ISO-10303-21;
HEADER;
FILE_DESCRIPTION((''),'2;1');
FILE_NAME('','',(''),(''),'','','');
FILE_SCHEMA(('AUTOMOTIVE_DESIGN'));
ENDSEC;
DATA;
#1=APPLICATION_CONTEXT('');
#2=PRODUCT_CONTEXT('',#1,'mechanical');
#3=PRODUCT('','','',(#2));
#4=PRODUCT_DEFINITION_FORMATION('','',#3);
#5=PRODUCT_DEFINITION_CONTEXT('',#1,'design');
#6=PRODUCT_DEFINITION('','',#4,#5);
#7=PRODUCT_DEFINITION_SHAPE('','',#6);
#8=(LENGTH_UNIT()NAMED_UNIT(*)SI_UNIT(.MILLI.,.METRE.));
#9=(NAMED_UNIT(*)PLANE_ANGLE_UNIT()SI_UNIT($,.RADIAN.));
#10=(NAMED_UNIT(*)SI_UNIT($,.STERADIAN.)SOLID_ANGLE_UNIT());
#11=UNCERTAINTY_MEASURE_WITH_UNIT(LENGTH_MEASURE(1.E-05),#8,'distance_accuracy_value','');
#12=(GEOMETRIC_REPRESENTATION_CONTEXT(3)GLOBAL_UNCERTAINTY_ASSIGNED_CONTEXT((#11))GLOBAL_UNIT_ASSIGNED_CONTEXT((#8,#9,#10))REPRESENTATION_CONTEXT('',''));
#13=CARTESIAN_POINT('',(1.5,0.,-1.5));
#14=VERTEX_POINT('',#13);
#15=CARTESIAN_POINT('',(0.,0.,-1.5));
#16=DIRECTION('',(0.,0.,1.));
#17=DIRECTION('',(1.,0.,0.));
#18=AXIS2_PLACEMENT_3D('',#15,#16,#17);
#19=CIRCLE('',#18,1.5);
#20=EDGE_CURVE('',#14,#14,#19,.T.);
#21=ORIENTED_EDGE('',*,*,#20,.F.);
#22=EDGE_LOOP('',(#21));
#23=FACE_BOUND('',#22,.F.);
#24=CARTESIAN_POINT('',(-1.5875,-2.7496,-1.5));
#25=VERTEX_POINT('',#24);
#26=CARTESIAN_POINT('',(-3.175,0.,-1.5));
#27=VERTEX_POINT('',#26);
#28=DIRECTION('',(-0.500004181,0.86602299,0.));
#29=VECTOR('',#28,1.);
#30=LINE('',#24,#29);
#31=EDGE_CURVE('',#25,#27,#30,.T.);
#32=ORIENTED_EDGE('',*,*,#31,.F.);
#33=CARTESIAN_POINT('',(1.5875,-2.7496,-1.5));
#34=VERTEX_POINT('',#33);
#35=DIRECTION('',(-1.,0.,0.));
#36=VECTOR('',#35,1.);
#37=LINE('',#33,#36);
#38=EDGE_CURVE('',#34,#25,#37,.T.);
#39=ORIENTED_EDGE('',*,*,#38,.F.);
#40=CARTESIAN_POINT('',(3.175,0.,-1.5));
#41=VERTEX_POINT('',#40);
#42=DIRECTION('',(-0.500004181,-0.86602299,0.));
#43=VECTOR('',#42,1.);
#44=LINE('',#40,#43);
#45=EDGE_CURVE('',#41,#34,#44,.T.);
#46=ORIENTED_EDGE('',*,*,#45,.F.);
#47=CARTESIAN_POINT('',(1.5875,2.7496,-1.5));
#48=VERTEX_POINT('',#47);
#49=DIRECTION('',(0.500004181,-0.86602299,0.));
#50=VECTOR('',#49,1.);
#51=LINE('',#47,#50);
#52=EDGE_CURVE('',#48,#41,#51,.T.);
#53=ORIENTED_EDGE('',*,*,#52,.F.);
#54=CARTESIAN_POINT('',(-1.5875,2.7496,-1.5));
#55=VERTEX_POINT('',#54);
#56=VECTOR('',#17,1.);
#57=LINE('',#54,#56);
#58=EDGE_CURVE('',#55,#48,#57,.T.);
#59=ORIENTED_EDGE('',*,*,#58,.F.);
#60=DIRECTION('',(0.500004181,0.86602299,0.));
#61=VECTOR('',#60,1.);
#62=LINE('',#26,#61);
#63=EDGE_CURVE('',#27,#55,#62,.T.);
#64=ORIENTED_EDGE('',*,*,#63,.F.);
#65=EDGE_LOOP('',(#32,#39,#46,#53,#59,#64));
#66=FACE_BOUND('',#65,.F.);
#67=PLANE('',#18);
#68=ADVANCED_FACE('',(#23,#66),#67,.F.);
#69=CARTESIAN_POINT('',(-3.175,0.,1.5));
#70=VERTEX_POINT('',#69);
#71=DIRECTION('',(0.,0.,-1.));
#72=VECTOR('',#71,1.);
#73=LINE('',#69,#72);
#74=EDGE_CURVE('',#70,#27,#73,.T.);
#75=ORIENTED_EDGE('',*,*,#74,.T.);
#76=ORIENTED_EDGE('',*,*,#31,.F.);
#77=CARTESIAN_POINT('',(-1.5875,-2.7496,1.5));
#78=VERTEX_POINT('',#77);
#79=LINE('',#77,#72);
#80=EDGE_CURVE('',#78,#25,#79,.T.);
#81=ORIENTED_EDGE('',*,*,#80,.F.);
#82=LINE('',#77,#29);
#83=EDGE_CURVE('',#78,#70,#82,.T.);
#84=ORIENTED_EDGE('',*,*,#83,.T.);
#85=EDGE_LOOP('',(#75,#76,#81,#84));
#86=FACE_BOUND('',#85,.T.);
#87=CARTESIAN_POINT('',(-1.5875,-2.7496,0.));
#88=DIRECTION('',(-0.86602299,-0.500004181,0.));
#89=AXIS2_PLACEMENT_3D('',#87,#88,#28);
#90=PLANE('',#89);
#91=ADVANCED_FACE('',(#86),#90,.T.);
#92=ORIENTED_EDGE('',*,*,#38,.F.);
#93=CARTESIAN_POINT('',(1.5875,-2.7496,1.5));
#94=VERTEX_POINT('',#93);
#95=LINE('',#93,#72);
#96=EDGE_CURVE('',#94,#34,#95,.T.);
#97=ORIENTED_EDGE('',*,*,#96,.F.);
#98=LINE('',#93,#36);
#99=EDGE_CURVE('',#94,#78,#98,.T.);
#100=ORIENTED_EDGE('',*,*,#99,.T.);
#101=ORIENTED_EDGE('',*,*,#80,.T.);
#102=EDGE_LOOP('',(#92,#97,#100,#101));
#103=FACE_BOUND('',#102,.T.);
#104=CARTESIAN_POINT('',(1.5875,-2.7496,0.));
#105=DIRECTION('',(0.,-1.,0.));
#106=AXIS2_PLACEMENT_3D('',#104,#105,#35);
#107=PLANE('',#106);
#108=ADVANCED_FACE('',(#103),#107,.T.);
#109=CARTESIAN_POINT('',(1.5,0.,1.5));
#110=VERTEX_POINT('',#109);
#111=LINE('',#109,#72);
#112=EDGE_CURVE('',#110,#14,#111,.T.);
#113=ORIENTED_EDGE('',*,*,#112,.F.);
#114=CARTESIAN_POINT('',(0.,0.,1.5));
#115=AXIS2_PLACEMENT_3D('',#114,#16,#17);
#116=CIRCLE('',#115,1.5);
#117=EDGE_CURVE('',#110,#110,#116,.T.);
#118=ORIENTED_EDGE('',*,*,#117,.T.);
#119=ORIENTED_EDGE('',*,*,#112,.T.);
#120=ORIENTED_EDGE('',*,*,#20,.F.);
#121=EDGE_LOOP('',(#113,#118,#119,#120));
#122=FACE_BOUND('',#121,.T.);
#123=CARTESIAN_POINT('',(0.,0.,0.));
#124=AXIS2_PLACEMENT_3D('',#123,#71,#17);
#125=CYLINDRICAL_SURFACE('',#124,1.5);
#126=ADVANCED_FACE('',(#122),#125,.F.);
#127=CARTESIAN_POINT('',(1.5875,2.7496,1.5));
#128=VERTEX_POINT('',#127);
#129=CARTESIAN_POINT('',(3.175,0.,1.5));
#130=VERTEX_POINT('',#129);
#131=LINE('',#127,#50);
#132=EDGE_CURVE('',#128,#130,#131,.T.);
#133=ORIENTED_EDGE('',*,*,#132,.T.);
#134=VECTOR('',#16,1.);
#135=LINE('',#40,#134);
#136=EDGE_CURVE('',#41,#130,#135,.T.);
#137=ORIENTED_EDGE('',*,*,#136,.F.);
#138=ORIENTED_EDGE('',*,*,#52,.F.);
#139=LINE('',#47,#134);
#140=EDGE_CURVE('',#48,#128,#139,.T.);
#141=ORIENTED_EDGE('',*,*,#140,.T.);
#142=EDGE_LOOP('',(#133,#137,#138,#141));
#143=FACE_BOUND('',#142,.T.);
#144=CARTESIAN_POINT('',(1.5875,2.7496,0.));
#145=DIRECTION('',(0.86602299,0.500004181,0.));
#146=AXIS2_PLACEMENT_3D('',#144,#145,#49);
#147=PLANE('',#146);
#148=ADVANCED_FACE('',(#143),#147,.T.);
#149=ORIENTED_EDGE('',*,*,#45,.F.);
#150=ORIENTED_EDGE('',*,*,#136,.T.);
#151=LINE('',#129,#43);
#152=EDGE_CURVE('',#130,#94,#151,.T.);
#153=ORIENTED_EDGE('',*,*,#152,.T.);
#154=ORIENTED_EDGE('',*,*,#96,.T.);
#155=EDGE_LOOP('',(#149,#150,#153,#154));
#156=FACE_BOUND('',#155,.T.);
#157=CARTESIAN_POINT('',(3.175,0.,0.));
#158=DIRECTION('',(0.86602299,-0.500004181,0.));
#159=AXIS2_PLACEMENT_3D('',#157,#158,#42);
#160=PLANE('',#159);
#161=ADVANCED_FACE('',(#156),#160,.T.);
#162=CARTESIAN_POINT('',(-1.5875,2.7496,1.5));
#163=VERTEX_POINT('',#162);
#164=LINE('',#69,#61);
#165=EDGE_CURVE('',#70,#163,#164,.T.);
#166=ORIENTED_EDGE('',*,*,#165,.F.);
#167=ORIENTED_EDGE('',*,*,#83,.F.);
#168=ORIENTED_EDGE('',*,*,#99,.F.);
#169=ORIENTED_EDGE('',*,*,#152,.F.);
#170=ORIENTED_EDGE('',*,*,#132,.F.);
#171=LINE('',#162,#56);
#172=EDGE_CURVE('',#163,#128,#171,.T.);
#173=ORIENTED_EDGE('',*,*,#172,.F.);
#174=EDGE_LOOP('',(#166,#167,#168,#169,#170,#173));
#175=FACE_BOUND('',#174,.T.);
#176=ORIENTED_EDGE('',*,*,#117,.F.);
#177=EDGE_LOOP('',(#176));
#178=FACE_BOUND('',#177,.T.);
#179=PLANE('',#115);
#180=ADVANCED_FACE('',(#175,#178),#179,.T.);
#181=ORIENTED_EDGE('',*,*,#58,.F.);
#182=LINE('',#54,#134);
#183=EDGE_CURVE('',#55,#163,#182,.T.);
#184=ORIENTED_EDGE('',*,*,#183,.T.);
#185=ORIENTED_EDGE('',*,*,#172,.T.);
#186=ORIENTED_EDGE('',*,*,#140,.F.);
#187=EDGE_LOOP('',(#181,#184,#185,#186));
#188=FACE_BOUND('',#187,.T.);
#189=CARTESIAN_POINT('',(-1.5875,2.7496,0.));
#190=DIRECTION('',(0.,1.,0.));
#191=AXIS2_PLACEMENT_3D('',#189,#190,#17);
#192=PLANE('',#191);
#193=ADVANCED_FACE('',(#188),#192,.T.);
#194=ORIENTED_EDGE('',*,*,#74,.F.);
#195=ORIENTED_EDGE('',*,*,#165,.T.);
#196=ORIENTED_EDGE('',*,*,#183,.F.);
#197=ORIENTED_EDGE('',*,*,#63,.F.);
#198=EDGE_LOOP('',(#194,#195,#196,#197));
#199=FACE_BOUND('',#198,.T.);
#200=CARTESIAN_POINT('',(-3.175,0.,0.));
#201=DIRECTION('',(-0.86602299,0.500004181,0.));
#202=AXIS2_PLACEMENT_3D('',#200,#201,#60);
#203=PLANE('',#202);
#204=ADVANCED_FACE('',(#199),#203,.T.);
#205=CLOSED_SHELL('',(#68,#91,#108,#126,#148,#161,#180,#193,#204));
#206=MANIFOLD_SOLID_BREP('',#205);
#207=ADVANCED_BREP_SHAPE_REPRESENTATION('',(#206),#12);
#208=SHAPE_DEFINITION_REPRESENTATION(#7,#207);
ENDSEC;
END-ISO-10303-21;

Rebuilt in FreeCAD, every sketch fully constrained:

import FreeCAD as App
import Part
import Sketcher

V = App.Vector
Q = App.Units.Quantity

doc = App.newDocument("Part")
body = doc.addObject("PartDesign::Body", "Body")

sketch1 = body.newObject("Sketcher::SketchObject", "Sketch")
sketch1.AttachmentSupport = (doc.getObject("XY_Plane"), [""])
sketch1.MapMode = "FlatFace"
sketch1.addGeometry([
    Part.LineSegment(V(1.5875, -2.7496, 0), V(3.175, 0, 0)),
    Part.LineSegment(V(3.175, 0, 0), V(1.5875, 2.7496, 0)),
    Part.LineSegment(V(1.5875, 2.7496, 0), V(-1.5875, 2.7496, 0)),
    Part.LineSegment(V(-1.5875, 2.7496, 0), V(-3.175, 0, 0)),
    Part.LineSegment(V(-3.175, 0, 0), V(-1.5875, -2.7496, 0)),
    Part.LineSegment(V(-1.5875, -2.7496, 0), V(1.5875, -2.7496, 0)),
    Part.Circle(V(0, 0, 0), V(0, 0, 1), 1.5),
], False)
sketch1.addConstraint([
    Sketcher.Constraint("Coincident", 0, 2, 1, 1),
    Sketcher.Constraint("Coincident", 1, 2, 2, 1),
    Sketcher.Constraint("Coincident", 2, 2, 3, 1),
    Sketcher.Constraint("Coincident", 3, 2, 4, 1),
    Sketcher.Constraint("Coincident", 4, 2, 5, 1),
    Sketcher.Constraint("Coincident", 5, 2, 0, 1),
    Sketcher.Constraint("Horizontal", 2),
    Sketcher.Constraint("Horizontal", 5),
    Sketcher.Constraint("Coincident", 6, 3, -1, 1),
    Sketcher.Constraint("Symmetric", 0, 2, 3, 2, -1, 1),
    Sketcher.Constraint("Symmetric", 1, 2, 4, 2, -1, 1),
    Sketcher.Constraint("PointOnObject", 0, 2, -1),
    Sketcher.Constraint("Parallel", 0, 3),
    Sketcher.Constraint("Vertical", 2, 2, 4, 2),
    Sketcher.Constraint("Diameter", 6, Q("0.1181 in")),
    Sketcher.Constraint("DistanceX", 2, 2, 2, 1, Q("0.125 in")),
    Sketcher.Constraint("Distance", 0, Q("0.125 in")),
    Sketcher.Constraint("DistanceX", -1, 1, 0, 2, Q("0.125 in")),
])
pad1 = body.newObject("PartDesign::Pad", "Pad")
pad1.Profile = sketch1
pad1.Length = Q("0.1181102 in")
pad1.Midplane = True

doc.recompute()
